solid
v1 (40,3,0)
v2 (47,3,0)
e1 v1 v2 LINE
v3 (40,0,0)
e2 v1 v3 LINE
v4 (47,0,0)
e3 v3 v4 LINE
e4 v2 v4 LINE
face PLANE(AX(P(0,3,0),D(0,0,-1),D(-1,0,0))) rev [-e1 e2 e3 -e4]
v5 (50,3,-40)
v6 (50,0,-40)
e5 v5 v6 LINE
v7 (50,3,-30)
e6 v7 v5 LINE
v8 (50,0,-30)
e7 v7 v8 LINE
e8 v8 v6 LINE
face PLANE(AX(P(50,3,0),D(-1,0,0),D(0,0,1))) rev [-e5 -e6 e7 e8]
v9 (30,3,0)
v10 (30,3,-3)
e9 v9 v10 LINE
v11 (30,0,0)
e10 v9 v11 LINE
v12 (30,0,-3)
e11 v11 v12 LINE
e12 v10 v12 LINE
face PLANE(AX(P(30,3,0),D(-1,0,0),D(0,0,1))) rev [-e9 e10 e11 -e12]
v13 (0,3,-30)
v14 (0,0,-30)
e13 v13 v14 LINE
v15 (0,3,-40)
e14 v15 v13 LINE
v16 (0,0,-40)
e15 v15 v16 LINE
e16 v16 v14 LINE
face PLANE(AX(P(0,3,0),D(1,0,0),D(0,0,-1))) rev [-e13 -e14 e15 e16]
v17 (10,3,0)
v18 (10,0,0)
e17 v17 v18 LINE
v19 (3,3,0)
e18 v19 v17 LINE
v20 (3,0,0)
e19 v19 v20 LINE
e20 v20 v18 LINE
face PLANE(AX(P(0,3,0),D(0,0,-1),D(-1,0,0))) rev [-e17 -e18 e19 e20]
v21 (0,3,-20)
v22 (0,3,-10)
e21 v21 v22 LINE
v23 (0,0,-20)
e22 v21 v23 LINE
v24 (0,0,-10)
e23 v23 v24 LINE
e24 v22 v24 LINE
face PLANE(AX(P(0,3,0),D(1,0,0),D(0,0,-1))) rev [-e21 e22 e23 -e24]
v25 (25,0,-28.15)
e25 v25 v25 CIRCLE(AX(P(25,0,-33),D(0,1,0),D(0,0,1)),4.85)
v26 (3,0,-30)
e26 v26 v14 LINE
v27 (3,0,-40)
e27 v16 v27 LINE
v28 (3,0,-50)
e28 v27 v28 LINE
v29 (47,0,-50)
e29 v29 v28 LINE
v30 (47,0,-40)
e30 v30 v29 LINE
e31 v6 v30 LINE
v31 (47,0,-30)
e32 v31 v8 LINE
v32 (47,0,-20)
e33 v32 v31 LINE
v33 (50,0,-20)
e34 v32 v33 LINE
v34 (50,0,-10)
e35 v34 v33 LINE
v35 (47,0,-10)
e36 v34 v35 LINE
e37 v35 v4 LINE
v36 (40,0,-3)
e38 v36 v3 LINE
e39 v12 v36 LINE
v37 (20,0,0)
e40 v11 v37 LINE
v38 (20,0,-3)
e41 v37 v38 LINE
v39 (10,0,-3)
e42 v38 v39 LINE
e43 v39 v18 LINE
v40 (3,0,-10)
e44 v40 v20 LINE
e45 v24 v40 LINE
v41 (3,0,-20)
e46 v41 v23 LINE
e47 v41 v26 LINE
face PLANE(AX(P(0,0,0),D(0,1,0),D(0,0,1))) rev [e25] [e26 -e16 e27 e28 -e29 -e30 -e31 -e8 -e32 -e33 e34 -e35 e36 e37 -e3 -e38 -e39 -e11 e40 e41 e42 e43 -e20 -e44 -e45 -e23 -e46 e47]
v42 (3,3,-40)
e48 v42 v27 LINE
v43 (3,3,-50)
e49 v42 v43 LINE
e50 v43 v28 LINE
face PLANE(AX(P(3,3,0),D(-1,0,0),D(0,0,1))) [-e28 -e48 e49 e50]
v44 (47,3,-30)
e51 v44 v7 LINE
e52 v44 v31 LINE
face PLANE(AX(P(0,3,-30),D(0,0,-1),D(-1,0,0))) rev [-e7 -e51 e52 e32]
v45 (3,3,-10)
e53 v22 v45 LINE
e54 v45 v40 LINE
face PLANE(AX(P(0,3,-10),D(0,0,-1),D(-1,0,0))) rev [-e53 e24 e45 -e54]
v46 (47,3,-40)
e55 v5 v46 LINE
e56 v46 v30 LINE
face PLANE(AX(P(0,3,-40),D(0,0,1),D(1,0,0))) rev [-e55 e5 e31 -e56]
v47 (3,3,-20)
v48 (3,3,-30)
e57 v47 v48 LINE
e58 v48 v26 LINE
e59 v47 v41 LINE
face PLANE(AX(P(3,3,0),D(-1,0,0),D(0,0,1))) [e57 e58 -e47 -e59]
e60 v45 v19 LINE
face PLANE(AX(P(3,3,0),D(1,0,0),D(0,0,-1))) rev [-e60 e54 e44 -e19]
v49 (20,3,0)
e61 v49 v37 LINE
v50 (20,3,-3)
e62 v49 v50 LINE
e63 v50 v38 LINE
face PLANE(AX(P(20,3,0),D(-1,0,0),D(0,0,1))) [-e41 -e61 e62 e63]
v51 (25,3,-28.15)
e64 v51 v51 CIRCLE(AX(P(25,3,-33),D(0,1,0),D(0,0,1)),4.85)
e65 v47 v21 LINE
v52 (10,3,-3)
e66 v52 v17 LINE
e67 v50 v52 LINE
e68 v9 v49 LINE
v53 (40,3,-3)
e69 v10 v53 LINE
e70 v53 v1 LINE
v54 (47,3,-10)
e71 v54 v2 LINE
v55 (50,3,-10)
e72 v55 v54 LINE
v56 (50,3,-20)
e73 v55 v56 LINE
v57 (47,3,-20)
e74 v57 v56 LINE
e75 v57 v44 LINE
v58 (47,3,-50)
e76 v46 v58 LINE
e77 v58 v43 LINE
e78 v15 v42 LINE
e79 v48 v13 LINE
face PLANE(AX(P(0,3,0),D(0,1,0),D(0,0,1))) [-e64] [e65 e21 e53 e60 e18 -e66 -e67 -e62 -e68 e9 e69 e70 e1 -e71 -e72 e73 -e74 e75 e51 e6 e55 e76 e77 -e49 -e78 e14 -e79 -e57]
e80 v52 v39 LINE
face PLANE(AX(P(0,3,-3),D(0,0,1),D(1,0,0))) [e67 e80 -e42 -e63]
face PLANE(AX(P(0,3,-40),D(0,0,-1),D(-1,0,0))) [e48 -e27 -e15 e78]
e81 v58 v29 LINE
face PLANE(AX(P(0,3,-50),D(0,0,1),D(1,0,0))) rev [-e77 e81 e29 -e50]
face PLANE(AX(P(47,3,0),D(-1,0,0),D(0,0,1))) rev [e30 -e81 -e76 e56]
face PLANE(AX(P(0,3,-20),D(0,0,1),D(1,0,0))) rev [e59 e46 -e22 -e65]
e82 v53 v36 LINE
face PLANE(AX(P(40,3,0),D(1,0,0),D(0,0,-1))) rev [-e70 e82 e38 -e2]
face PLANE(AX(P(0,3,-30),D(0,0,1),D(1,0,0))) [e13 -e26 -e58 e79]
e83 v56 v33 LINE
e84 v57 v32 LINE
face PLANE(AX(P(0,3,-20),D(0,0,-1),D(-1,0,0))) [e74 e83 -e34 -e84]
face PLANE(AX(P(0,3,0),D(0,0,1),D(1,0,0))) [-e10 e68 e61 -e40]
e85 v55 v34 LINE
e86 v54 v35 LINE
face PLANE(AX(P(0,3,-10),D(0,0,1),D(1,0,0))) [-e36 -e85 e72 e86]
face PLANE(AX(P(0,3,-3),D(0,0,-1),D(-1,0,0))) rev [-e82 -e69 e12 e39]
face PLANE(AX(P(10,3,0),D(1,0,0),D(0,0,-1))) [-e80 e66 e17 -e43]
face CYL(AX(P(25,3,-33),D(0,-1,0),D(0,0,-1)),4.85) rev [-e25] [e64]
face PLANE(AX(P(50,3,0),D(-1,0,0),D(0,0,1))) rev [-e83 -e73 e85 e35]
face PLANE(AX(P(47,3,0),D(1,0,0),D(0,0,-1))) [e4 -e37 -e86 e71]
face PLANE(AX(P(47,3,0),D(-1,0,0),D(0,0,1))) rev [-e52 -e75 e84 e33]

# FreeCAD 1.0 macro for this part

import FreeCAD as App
import Part
import Sketcher

V = App.Vector
Q = App.Units.Quantity


def add_polygon(sketch, points):
    """Adds a closed chain of lines whose ends are joined by coincident constraints."""
    first, n = sketch.GeometryCount, len(points)
    for a, b in zip(points, points[1:] + points[:1]):
        sketch.addGeometry(Part.LineSegment(App.Vector(*a, 0), App.Vector(*b, 0)), False)
    for i in range(n):
        sketch.addConstraint(Sketcher.Constraint("Coincident", first + i, 2, first + (i + 1) % n, 1))

doc = App.newDocument("Part")
body = doc.addObject("PartDesign::Body", "Body")

sketch1 = doc.addObject("Sketcher::SketchObject", "Sketch")
body.addObject(sketch1)
sketch1.AttachmentSupport = (doc.XZ_Plane, [""])
sketch1.MapMode = "FlatFace"
add_polygon(sketch1, [(3, -10), (3, 0), (10, 0), (10, -3), (20, -3), (20, 0), (30, 0), (30, -3), (40, -3), (40, 0), (47, 0), (47, -10), (50, -10), (50, -20), (47, -20), (47, -30), (50, -30), (50, -40), (47, -40), (47, -50), (3, -50), (3, -40), (0, -40), (0, -30), (3, -30), (3, -20), (0, -20), (0, -10)])
sketch1.addGeometry(Part.Circle(V(25, -33, 0), V(0, 0, 1), 4.8), False)
sketch1.addConstraint([
    Sketcher.Constraint("Vertical", 0),
    Sketcher.Constraint("Horizontal", 1),
    Sketcher.Constraint("Vertical", 2),
    Sketcher.Constraint("Horizontal", 3),
    Sketcher.Constraint("Vertical", 4),
    Sketcher.Constraint("Horizontal", 5),
    Sketcher.Constraint("Vertical", 6),
    Sketcher.Constraint("Horizontal", 7),
    Sketcher.Constraint("Vertical", 8),
    Sketcher.Constraint("Horizontal", 9),
    Sketcher.Constraint("Vertical", 10),
    Sketcher.Constraint("Horizontal", 11),
    Sketcher.Constraint("Vertical", 12),
    Sketcher.Constraint("Horizontal", 13),
    Sketcher.Constraint("Vertical", 14),
    Sketcher.Constraint("Horizontal", 15),
    Sketcher.Constraint("Vertical", 16),
    Sketcher.Constraint("Horizontal", 17),
    Sketcher.Constraint("Vertical", 18),
    Sketcher.Constraint("Horizontal", 19),
    Sketcher.Constraint("Vertical", 20),
    Sketcher.Constraint("Horizontal", 21),
    Sketcher.Constraint("Vertical", 22),
    Sketcher.Constraint("Horizontal", 23),
    Sketcher.Constraint("Vertical", 24),
    Sketcher.Constraint("Horizontal", 25),
    Sketcher.Constraint("Vertical", 26),
    Sketcher.Constraint("Horizontal", 27),
    Sketcher.Constraint("PointOnObject", 0, 2, -1),
    Sketcher.Constraint("PointOnObject", 4, 2, -1),
    Sketcher.Constraint("PointOnObject", 8, 2, -1),
    Sketcher.Constraint("PointOnObject", 21, 2, -2),
    Sketcher.Constraint("PointOnObject", 25, 2, -2),
    Sketcher.Constraint("Horizontal", 3, 2, 6, 2),
    Sketcher.Constraint("Horizontal", 17, 2, 20, 2),
    Sketcher.Constraint("Horizontal", 15, 2, 22, 2),
    Sketcher.Constraint("Horizontal", 13, 2, 24, 2),
    Sketcher.Constraint("Horizontal", 11, 2, 26, 2),
    Sketcher.Constraint("Vertical", 10, 2, 13, 2),
    Sketcher.Constraint("Vertical", 12, 2, 15, 2),
    Sketcher.Constraint("Vertical", 14, 2, 17, 2),
    Sketcher.Constraint("Vertical", 0, 2, 19, 2),
    Sketcher.Constraint("Vertical", 20, 2, 23, 2),
    Sketcher.Constraint("Equal", 3, 5),
    Sketcher.Constraint("Equal", 5, 7),
    Sketcher.Constraint("Equal", 1, 9),
    Sketcher.Constraint("Equal", 17, 21),
    Sketcher.Constraint("Equal", 7, 0),
    Sketcher.Constraint("Equal", 27, 2),
    Sketcher.Constraint("Equal", 10, 12),
    Sketcher.Constraint("Equal", 12, 14),
    Sketcher.Constraint("Equal", 14, 16),
    Sketcher.Constraint("Equal", 16, 18),
    Sketcher.Constraint("Diameter", 28, Q("9.7 mm")),
    Sketcher.Constraint("DistanceX", 1, 1, 1, 2, Q("7 mm")),
    Sketcher.Constraint("DistanceX", 3, 1, 3, 2, Q("10 mm")),
    Sketcher.Constraint("DistanceX", 11, 1, 11, 2, Q("3 mm")),
    Sketcher.Constraint("DistanceX", -1, 1, 28, 3, Q("25 mm")),
    Sketcher.Constraint("DistanceY", 28, 3, -1, 1, Q("33 mm")),
])
pad1 = doc.addObject("PartDesign::Pad", "Pad")
body.addObject(pad1)
pad1.Profile = sketch1
pad1.Length = 3
pad1.Reversed = True

doc.recompute()
